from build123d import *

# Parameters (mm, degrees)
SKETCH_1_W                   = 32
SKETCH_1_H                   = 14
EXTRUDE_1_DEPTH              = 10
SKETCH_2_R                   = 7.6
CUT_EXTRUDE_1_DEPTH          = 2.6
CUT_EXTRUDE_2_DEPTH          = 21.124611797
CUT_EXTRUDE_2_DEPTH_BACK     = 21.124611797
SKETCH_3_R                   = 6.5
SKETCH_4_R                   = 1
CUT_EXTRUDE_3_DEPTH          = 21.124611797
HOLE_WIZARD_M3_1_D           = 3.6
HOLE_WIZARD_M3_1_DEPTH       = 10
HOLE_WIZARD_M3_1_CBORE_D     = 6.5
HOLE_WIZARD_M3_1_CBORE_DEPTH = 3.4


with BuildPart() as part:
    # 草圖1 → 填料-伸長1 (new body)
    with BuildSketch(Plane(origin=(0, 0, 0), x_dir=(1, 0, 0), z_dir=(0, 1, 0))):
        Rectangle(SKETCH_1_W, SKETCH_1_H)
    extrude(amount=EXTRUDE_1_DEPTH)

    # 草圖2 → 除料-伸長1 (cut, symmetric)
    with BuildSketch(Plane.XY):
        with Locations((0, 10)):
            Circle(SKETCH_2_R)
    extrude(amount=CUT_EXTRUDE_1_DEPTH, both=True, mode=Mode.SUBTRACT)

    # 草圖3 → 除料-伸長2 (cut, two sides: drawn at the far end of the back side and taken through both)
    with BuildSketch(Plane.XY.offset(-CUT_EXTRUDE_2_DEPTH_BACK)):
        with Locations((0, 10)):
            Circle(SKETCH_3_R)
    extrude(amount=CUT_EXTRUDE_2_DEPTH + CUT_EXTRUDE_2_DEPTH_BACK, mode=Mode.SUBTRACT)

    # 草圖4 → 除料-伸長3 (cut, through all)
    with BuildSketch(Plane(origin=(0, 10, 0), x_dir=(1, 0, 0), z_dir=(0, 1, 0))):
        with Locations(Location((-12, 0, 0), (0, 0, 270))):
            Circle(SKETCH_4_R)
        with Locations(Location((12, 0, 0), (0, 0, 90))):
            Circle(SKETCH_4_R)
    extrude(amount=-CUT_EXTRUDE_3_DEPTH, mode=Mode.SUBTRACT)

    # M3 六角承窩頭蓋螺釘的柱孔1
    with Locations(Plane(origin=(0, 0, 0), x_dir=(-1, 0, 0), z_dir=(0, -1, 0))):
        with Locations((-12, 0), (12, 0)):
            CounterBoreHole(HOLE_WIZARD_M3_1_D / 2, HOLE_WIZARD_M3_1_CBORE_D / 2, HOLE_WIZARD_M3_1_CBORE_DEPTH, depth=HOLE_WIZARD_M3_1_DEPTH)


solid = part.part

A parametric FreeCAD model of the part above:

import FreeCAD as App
import Part
import Sketcher
from FreeCAD import Vector

doc = App.newDocument("Part")
params = doc.addObject("Spreadsheet::Sheet", "Params")
for row, (alias, value) in enumerate([
    ("sketch1_width", "32 mm"),
    ("sketch1_height", "14 mm"),
    ("pad1_length", "10 mm"),
    ("sketch2_diameter", "15.2 mm"),
    ("pocket1_length", "5.2 mm"),
    ("sketch3_diameter", "13 mm"),
    ("sketch4_diameter", "2 mm"),
    ("sketch5_diameter", "3.6 mm"),
    ("hole_diameter", "3.6 mm"),
    ("hole_depth", "10 mm"),
    ("hole_cbore_diameter", "6.5 mm"),
    ("hole_cbore_depth", "3.4 mm"),
], start=1):
    params.set(f"A{row}", alias)
    params.set(f"B{row}", "=" + value)
    params.setAlias(f"B{row}", alias)

body = doc.addObject("PartDesign::Body", "Body")

sketch1 = body.newObject("Sketcher::SketchObject", "Sketch")
sketch1.AttachmentSupport = (doc.getObject("XZ_Plane"), [""])
sketch1.MapMode = "FlatFace"
sketch1.addGeometry([
    Part.LineSegment(Vector(-16, -7, 0), Vector(-16, 7, 0)),
    Part.LineSegment(Vector(-16, 7, 0), Vector(16, 7, 0)),
    Part.LineSegment(Vector(16, 7, 0), Vector(16, -7, 0)),
    Part.LineSegment(Vector(16, -7, 0), Vector(-16, -7, 0)),
], False)
sketch1.addConstraint([
    Sketcher.Constraint("Coincident", 0, 2, 1, 1),
    Sketcher.Constraint("Coincident", 1, 2, 2, 1),
    Sketcher.Constraint("Coincident", 2, 2, 3, 1),
    Sketcher.Constraint("Coincident", 3, 2, 0, 1),
    Sketcher.Constraint("Vertical", 0),
    Sketcher.Constraint("Horizontal", 1),
    Sketcher.Constraint("Vertical", 2),
    Sketcher.Constraint("Horizontal", 3),
    Sketcher.Constraint("Symmetric", 0, 2, 2, 2, -1, 1),
    Sketcher.Constraint("DistanceX", 1, 1, 1, 2, 32.0),
    Sketcher.Constraint("DistanceY", 0, 1, 0, 2, 14.0),
])
sketch1.setExpression("Constraints[9]", "Params.sketch1_width")
sketch1.setExpression("Constraints[10]", "Params.sketch1_height")
pad1 = body.newObject("PartDesign::Pad", "Pad")
pad1.Profile = sketch1
pad1.setExpression("Length", "Params.pad1_length")
pad1.Reversed = True

sketch2 = body.newObject("Sketcher::SketchObject", "Sketch001")
sketch2.AttachmentSupport = (doc.getObject("XY_Plane"), [""])
sketch2.MapMode = "FlatFace"
sketch2.addGeometry(Part.Circle(Vector(0, 10, 0), Vector(0, 0, 1), 8), False)
sketch2.addConstraint([
    Sketcher.Constraint("PointOnObject", 0, 3, -2),
    Sketcher.Constraint("Diameter", 0, 15.2),
    Sketcher.Constraint("DistanceY", -1, 1, 0, 3, 10.0),
])
sketch2.setExpression("Constraints[1]", "Params.sketch2_diameter")
pocket1 = body.newObject("PartDesign::Pocket", "Pocket")
pocket1.Profile = sketch2
pocket1.setExpression("Length", "Params.pocket1_length")
pocket1.Midplane = True

sketch3 = body.newObject("Sketcher::SketchObject", "Sketch002")
sketch3.AttachmentSupport = (doc.getObject("XY_Plane"), [""])
sketch3.MapMode = "FlatFace"
sketch3.addGeometry(Part.Circle(Vector(0, 10, 0), Vector(0, 0, 1), 6), False)
sketch3.addConstraint([
    Sketcher.Constraint("PointOnObject", 0, 3, -2),
    Sketcher.Constraint("Diameter", 0, 13.0),
    Sketcher.Constraint("DistanceY", -1, 1, 0, 3, 10.0),
])
sketch3.setExpression("Constraints[1]", "Params.sketch3_diameter")
pocket2 = body.newObject("PartDesign::Pocket", "Pocket001")
pocket2.Profile = sketch3
pocket2.Type = "ThroughAll"
pocket2.Midplane = True

sketch4 = body.newObject("Sketcher::SketchObject", "Sketch003")
sketch4.AttachmentSupport = (doc.getObject("XZ_Plane"), [""])
sketch4.MapMode = "FlatFace"
sketch4.AttachmentOffset = App.Placement(Vector(0, 0, -10), App.Rotation())
sketch4.addGeometry([
    Part.Circle(Vector(-12, 0, 0), Vector(0, 0, 1), 1),
    Part.Circle(Vector(12, 0, 0), Vector(0, 0, 1), 1),
], False)
sketch4.addConstraint([
    Sketcher.Constraint("Equal", 0, 1),
    Sketcher.Constraint("Symmetric", 0, 3, 1, 3, -1, 1),
    Sketcher.Constraint("PointOnObject", 0, 3, -1),
    Sketcher.Constraint("Diameter", 0, 2.0),
    Sketcher.Constraint("DistanceX", 0, 3, -1, 1, 12.0),
])
sketch4.setExpression("Constraints[3]", "Params.sketch4_diameter")
pocket3 = body.newObject("PartDesign::Pocket", "Pocket002")
pocket3.Profile = sketch4
pocket3.Type = "ThroughAll"
pocket3.Reversed = True

sketch5 = body.newObject("Sketcher::SketchObject", "Sketch004")
sketch5.AttachmentSupport = (doc.getObject("XZ_Plane"), [""])
sketch5.MapMode = "FlatFace"
sketch5.addGeometry([
    Part.Circle(Vector(12, 0, 0), Vector(0, 0, 1), 1.8),
    Part.Circle(Vector(-12, 0, 0), Vector(0, 0, 1), 1.8),
], False)
sketch5.addConstraint([
    Sketcher.Constraint("Equal", 0, 1),
    Sketcher.Constraint("Symmetric", 0, 3, 1, 3, -1, 1),
    Sketcher.Constraint("PointOnObject", 0, 3, -1),
    Sketcher.Constraint("Diameter", 0, 3.6),
    Sketcher.Constraint("DistanceX", -1, 1, 0, 3, 12.0),
])
sketch5.setExpression("Constraints[3]", "Params.sketch5_diameter")
doc.recompute()
hole = body.newObject("PartDesign::Hole", "Hole")
hole.Profile = sketch5
hole.ThreadType = "None"
hole.setExpression("Diameter", "Params.hole_diameter")
hole.DepthType = "Dimension"
hole.setExpression("Depth", "Params.hole_depth")
hole.DrillPoint = "Flat"
hole.HoleCutType = "Counterbore"
hole.setExpression("HoleCutDiameter", "Params.hole_cbore_diameter")
hole.setExpression("HoleCutDepth", "Params.hole_cbore_depth")

doc.recompute()
